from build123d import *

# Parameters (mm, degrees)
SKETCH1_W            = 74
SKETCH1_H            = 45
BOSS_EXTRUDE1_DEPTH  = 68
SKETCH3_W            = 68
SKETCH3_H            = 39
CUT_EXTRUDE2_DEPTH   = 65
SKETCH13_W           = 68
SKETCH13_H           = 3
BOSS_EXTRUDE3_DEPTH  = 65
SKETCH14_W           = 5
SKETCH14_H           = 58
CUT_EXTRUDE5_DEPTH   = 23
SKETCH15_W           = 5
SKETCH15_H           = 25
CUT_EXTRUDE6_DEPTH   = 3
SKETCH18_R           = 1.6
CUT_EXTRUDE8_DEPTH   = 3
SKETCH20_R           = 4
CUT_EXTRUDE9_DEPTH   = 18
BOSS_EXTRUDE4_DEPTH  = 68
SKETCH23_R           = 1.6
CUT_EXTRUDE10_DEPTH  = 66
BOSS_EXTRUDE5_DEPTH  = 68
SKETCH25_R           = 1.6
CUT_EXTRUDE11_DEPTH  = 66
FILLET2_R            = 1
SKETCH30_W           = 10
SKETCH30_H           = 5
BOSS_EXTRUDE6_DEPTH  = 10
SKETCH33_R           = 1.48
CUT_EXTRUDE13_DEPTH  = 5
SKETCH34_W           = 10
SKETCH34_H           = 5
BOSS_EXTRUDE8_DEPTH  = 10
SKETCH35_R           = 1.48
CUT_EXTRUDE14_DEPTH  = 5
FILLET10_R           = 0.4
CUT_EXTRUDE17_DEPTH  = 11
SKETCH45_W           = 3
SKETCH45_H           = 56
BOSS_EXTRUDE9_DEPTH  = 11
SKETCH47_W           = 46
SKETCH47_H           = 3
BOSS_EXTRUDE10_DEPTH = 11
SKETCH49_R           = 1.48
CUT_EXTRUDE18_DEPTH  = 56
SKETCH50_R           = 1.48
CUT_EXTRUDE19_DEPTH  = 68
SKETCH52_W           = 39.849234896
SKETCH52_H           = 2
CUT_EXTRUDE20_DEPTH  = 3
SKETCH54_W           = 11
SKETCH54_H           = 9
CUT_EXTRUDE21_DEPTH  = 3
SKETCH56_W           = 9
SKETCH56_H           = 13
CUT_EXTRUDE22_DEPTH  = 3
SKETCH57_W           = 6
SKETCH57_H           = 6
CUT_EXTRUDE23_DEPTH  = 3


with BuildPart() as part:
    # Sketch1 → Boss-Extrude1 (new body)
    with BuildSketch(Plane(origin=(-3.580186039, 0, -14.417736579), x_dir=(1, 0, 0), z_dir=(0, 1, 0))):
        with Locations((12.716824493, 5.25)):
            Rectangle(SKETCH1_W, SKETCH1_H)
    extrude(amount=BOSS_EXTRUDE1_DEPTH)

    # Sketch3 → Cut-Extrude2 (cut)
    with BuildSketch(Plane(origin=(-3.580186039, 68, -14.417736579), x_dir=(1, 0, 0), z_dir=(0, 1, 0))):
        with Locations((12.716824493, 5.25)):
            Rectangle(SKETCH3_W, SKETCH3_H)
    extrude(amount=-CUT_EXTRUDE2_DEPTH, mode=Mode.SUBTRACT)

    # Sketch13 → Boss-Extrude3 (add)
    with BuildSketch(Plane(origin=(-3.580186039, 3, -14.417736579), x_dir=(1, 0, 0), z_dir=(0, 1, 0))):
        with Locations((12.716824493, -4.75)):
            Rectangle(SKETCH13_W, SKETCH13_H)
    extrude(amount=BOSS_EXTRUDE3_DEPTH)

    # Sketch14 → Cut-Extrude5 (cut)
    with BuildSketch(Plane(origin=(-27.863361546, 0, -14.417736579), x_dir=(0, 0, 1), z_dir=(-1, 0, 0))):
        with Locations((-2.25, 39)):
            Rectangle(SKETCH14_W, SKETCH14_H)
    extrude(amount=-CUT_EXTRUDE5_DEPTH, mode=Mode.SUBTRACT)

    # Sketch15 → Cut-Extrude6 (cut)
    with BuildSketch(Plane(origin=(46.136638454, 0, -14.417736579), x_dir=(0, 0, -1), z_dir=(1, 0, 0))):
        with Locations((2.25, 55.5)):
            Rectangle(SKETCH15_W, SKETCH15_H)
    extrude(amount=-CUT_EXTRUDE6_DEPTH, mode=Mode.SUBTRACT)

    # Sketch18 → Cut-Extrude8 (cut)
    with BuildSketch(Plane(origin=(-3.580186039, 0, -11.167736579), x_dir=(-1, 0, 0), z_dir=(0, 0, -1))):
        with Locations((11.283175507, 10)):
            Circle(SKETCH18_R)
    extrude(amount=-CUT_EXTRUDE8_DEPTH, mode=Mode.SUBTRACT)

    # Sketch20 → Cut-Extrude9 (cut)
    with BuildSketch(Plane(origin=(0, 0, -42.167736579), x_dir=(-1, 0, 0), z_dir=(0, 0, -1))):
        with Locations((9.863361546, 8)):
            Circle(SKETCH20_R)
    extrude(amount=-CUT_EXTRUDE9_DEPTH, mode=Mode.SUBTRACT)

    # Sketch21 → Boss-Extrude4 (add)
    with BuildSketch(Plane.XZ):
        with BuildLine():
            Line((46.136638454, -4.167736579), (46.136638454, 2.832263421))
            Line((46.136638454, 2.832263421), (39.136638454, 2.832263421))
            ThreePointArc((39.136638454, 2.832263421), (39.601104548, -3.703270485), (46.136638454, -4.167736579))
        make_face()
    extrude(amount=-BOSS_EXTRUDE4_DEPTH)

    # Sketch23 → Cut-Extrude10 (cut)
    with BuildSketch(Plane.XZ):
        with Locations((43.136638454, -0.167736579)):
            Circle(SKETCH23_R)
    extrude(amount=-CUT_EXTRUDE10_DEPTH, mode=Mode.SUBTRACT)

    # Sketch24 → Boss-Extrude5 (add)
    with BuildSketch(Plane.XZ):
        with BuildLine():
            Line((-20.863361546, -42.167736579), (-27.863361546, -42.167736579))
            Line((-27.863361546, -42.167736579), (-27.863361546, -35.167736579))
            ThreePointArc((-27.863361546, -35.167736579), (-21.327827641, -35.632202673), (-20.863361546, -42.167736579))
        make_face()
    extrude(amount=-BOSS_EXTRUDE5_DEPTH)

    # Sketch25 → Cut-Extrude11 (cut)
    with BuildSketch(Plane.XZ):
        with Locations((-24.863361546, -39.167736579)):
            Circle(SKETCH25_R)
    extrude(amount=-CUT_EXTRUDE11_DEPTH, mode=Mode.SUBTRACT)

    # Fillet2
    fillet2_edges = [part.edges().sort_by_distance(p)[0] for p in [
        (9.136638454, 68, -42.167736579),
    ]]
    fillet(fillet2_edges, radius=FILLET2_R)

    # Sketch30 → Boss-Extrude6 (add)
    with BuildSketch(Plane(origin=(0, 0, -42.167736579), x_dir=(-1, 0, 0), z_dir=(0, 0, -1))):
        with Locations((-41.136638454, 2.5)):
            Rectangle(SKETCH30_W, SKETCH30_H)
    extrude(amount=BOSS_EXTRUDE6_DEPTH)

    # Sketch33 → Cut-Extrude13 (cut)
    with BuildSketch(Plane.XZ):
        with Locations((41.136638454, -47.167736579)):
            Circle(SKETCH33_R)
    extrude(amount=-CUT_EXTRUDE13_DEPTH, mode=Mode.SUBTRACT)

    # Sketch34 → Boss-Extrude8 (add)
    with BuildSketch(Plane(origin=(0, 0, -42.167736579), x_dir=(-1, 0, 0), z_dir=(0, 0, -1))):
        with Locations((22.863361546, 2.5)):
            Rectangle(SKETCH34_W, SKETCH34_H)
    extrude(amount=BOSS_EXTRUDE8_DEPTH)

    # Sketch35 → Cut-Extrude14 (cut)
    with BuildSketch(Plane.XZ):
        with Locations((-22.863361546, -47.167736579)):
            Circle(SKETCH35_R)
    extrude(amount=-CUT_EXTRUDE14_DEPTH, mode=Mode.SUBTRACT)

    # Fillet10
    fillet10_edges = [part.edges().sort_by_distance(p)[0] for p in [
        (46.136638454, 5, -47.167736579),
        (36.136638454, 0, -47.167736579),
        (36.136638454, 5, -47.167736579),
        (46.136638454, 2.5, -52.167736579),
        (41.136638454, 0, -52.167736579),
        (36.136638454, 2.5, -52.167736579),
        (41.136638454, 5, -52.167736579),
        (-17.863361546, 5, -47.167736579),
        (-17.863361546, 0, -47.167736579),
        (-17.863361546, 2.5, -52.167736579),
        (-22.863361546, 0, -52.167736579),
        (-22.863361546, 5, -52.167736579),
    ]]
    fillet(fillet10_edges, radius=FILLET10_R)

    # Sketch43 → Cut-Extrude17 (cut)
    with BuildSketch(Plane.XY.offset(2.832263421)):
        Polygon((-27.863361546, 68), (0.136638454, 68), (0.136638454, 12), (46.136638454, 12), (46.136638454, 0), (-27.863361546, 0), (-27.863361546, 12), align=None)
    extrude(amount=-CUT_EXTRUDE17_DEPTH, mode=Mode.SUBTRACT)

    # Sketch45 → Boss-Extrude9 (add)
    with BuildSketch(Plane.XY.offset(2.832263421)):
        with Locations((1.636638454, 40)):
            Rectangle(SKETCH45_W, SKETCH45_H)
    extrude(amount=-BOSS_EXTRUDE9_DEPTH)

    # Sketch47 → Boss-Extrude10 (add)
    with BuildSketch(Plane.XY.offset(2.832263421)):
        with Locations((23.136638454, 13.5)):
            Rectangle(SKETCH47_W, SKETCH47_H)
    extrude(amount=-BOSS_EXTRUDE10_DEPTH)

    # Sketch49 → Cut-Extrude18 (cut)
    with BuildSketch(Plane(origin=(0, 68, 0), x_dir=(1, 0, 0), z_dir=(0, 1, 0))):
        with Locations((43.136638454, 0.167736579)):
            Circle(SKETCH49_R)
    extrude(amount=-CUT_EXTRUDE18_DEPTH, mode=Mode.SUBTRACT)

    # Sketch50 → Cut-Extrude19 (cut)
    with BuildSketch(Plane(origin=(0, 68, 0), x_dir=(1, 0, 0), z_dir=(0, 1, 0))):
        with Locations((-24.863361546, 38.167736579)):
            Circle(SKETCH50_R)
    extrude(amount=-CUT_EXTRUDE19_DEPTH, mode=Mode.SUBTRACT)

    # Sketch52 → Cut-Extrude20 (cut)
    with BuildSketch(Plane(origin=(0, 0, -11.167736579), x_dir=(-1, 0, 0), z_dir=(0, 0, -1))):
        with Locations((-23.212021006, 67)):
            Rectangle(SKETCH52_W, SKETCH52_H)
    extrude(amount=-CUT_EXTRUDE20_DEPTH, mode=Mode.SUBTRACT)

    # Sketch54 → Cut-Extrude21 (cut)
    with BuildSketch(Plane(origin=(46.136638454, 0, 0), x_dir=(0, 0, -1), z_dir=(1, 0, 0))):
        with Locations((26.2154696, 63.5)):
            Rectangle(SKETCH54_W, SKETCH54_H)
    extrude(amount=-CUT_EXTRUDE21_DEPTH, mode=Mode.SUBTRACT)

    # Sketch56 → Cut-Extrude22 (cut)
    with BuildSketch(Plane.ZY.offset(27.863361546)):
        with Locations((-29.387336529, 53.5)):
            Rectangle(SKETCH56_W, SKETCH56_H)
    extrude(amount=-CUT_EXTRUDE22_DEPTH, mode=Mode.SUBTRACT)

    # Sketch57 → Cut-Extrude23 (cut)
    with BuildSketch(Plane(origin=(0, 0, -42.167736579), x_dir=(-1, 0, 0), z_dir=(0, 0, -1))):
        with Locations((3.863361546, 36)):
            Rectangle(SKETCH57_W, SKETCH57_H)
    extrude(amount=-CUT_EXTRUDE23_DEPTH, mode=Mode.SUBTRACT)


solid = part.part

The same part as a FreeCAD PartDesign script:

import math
import FreeCAD as App
import Part
import Sketcher
Q = App.Units.Quantity


def edges_at(feature, points):
    """Names of the edges that pass closest to the given points."""
    edges = feature.Shape.Edges
    near = lambda p: min(range(len(edges)), key=lambda i: edges[i].distToShape(Part.Vertex(*p))[0])
    return sorted({f"Edge{near(p) + 1}" for p in points})


def add_polygon(sketch, points):
    """Adds a closed chain of lines whose ends are joined by coincident constraints."""
    first, n = sketch.GeometryCount, len(points)
    for a, b in zip(points, points[1:] + points[:1]):
        sketch.addGeometry(Part.LineSegment(App.Vector(*a, 0), App.Vector(*b, 0)), False)
    for i in range(n):
        sketch.addConstraint(Sketcher.Constraint("Coincident", first + i, 2, first + (i + 1) % n, 1))

doc = App.newDocument("Part")
body = doc.addObject("PartDesign::Body", "Body")

sketch1 = body.newObject("Sketcher::SketchObject", "Sketch")
sketch1.AttachmentSupport = (doc.getObject("XZ_Plane"), [""])
sketch1.MapMode = "FlatFace"
add_polygon(sketch1, [(-27.863362, -42.167737), (-27.863362, 2.832263), (46.136638, 2.832263), (46.136638, -42.167737)])
sketch1.addConstraint([
    Sketcher.Constraint("Vertical", 0),
    Sketcher.Constraint("Horizontal", 1),
    Sketcher.Constraint("Vertical", 2),
    Sketcher.Constraint("Horizontal", 3),
    Sketcher.Constraint("DistanceX", 1, 1, 1, 2, Q("74 mm")),
    Sketcher.Constraint("DistanceY", 0, 1, 0, 2, Q("45 mm")),
    Sketcher.Constraint("DistanceX", 0, 2, -1, 1, Q("27.863362 mm")),
    Sketcher.Constraint("DistanceY", -1, 1, 0, 2, Q("2.832263 mm")),
])
pad1 = body.newObject("PartDesign::Pad", "Pad")
pad1.Profile = sketch1
pad1.Length = 68
pad1.Reversed = True

sketch2 = body.newObject("Sketcher::SketchObject", "Sketch001")
sketch2.AttachmentSupport = (doc.getObject("XZ_Plane"), [""])
sketch2.MapMode = "FlatFace"
sketch2.AttachmentOffset = App.Placement(App.Vector(0, 0, -68), App.Rotation())
add_polygon(sketch2, [(-24.863362, -39.167737), (-24.863362, -0.167737), (43.136638, -0.167737), (43.136638, -39.167737)])
sketch2.addConstraint([
    Sketcher.Constraint("Vertical", 0),
    Sketcher.Constraint("Horizontal", 1),
    Sketcher.Constraint("Vertical", 2),
    Sketcher.Constraint("Horizontal", 3),
    Sketcher.Constraint("DistanceX", 1, 1, 1, 2, Q("68 mm")),
    Sketcher.Constraint("DistanceY", 0, 1, 0, 2, Q("39 mm")),
    Sketcher.Constraint("DistanceX", 0, 2, -1, 1, Q("24.863362 mm")),
    Sketcher.Constraint("DistanceY", 0, 2, -1, 1, Q("0.167737 mm")),
])
pocket1 = body.newObject("PartDesign::Pocket", "Pocket")
pocket1.Profile = sketch2
pocket1.Length = 65
pocket1.Reversed = True

sketch3 = body.newObject("Sketcher::SketchObject", "Sketch002")
sketch3.AttachmentSupport = (doc.getObject("XZ_Plane"), [""])
sketch3.MapMode = "FlatFace"
sketch3.AttachmentOffset = App.Placement(App.Vector(0, 0, -3), App.Rotation())
add_polygon(sketch3, [(-24.863362, -11.167737), (-24.863362, -8.167737), (43.136638, -8.167737), (43.136638, -11.167737)])
sketch3.addConstraint([
    Sketcher.Constraint("Vertical", 0),
    Sketcher.Constraint("Horizontal", 1),
    Sketcher.Constraint("Vertical", 2),
    Sketcher.Constraint("Horizontal", 3),
    Sketcher.Constraint("DistanceX", 1, 1, 1, 2, Q("68 mm")),
    Sketcher.Constraint("DistanceY", 0, 1, 0, 2, Q("3 mm")),
    Sketcher.Constraint("DistanceX", 0, 2, -1, 1, Q("24.863362 mm")),
    Sketcher.Constraint("DistanceY", 0, 2, -1, 1, Q("8.167737 mm")),
])
pad2 = body.newObject("PartDesign::Pad", "Pad001")
pad2.Profile = sketch3
pad2.Length = 65
pad2.Reversed = True

sketch4 = body.newObject("Sketcher::SketchObject", "Sketch003")
sketch4.AttachmentSupport = (doc.getObject("YZ_Plane"), [""])
sketch4.MapMode = "FlatFace"
sketch4.AttachmentOffset = App.Placement(App.Vector(0, 0, -27.863362), App.Rotation())
add_polygon(sketch4, [(68, -19.167737), (10, -19.167737), (10, -14.167737), (68, -14.167737)])
sketch4.addConstraint([
    Sketcher.Constraint("Horizontal", 0),
    Sketcher.Constraint("Vertical", 1),
    Sketcher.Constraint("Horizontal", 2),
    Sketcher.Constraint("Vertical", 3),
    Sketcher.Constraint("DistanceX", 0, 2, 0, 1, Q("58 mm")),
    Sketcher.Constraint("DistanceY", 1, 1, 1, 2, Q("5 mm")),
    Sketcher.Constraint("DistanceX", -1, 1, 0, 2, Q("10 mm")),
    Sketcher.Constraint("DistanceY", 0, 2, -1, 1, Q("19.167737 mm")),
])
pocket2 = body.newObject("PartDesign::Pocket", "Pocket001")
pocket2.Profile = sketch4
pocket2.Length = 23
pocket2.Reversed = True

sketch5 = body.newObject("Sketcher::SketchObject", "Sketch004")
sketch5.AttachmentSupport = (doc.getObject("YZ_Plane"), [""])
sketch5.MapMode = "FlatFace"
sketch5.AttachmentOffset = App.Placement(App.Vector(0, 0, 46.136638), App.Rotation())
add_polygon(sketch5, [(68, -14.167737), (43, -14.167737), (43, -19.167737), (68, -19.167737)])
sketch5.addConstraint([
    Sketcher.Constraint("Horizontal", 0),
    Sketcher.Constraint("Vertical", 1),
    Sketcher.Constraint("Horizontal", 2),
    Sketcher.Constraint("Vertical", 3),
    Sketcher.Constraint("DistanceX", 0, 2, 0, 1, Q("25 mm")),
    Sketcher.Constraint("DistanceY", 1, 2, 1, 1, Q("5 mm")),
    Sketcher.Constraint("DistanceX", -1, 1, 0, 2, Q("43 mm")),
    Sketcher.Constraint("DistanceY", 0, 2, -1, 1, Q("14.167737 mm")),
])
pocket3 = body.newObject("PartDesign::Pocket", "Pocket002")
pocket3.Profile = sketch5
pocket3.Length = 3

sketch6 = body.newObject("Sketcher::SketchObject", "Sketch005")
sketch6.AttachmentSupport = (doc.getObject("XY_Plane"), [""])
sketch6.MapMode = "FlatFace"
sketch6.AttachmentOffset = App.Placement(App.Vector(0, 0, -11.167737), App.Rotation())
sketch6.addGeometry(Part.Circle(App.Vector(-14.863362, 10, 0), App.Vector(0, 0, 1), 1.6), False)
sketch6.addConstraint([
    Sketcher.Constraint("Diameter", 0, Q("3.2 mm")),
    Sketcher.Constraint("DistanceY", -1, 1, 0, 3, Q("10 mm")),
    Sketcher.Constraint("DistanceX", 0, 3, -1, 1, Q("14.863362 mm")),
])
pocket4 = body.newObject("PartDesign::Pocket", "Pocket003")
pocket4.Profile = sketch6
pocket4.Length = 3
pocket4.Reversed = True

sketch7 = body.newObject("Sketcher::SketchObject", "Sketch006")
sketch7.AttachmentSupport = (doc.getObject("XY_Plane"), [""])
sketch7.MapMode = "FlatFace"
sketch7.AttachmentOffset = App.Placement(App.Vector(0, 0, -42.167737), App.Rotation())
sketch7.addGeometry(Part.Circle(App.Vector(-9.863362, 8, 0), App.Vector(0, 0, 1), 4), False)
sketch7.addConstraint([
    Sketcher.Constraint("Diameter", 0, Q("8 mm")),
    Sketcher.Constraint("DistanceY", -1, 1, 0, 3, Q("8 mm")),
    Sketcher.Constraint("DistanceX", 0, 3, -1, 1, Q("9.863362 mm")),
])
pocket5 = body.newObject("PartDesign::Pocket", "Pocket004")
pocket5.Profile = sketch7
pocket5.Length = 18
pocket5.Reversed = True

sketch8 = body.newObject("Sketcher::SketchObject", "Sketch007")
sketch8.AttachmentSupport = (doc.getObject("XZ_Plane"), [""])
sketch8.MapMode = "FlatFace"
sketch8.addGeometry([
    Part.LineSegment(App.Vector(46.136638, -4.167737, 0), App.Vector(46.136638, 2.832263, 0)),
    Part.LineSegment(App.Vector(46.136638, 2.832263, 0), App.Vector(39.136638, 2.832263, 0)),
    Part.ArcOfCircle(Part.Circle(App.Vector(43.136638, -0.167737, 0), App.Vector(0, 0, 1), 5), math.radians(143.130102), math.radians(306.869898)),
], False)
sketch8.addConstraint([
    Sketcher.Constraint("Coincident", 0, 2, 1, 1),
    Sketcher.Constraint("Coincident", 1, 2, 2, 1),
    Sketcher.Constraint("Coincident", 2, 2, 0, 1),
    Sketcher.Constraint("Vertical", 0),
    Sketcher.Constraint("Horizontal", 1),
    Sketcher.Constraint("Equal", 1, 0),
    Sketcher.Constraint("Radius", 2, Q("5 mm")),
    Sketcher.Constraint("DistanceX", 1, 2, 1, 1, Q("7 mm")),
    Sketcher.Constraint("DistanceX", -1, 1, 2, 3, Q("43.136638 mm")),
    Sketcher.Constraint("DistanceY", 2, 3, -1, 1, Q("0.167737 mm")),
])
pad3 = body.newObject("PartDesign::Pad", "Pad002")
pad3.Profile = sketch8
pad3.Length = 68
pad3.Reversed = True

sketch9 = body.newObject("Sketcher::SketchObject", "Sketch008")
sketch9.AttachmentSupport = (doc.getObject("XZ_Plane"), [""])
sketch9.MapMode = "FlatFace"
sketch9.addGeometry(Part.Circle(App.Vector(43.136638, -0.167737, 0), App.Vector(0, 0, 1), 1.6), False)
sketch9.addConstraint([
    Sketcher.Constraint("Diameter", 0, Q("3.2 mm")),
    Sketcher.Constraint("DistanceX", -1, 1, 0, 3, Q("43.136638 mm")),
    Sketcher.Constraint("DistanceY", 0, 3, -1, 1, Q("0.167737 mm")),
])
pocket6 = body.newObject("PartDesign::Pocket", "Pocket005")
pocket6.Profile = sketch9
pocket6.Length = 66

sketch10 = body.newObject("Sketcher::SketchObject", "Sketch009")
sketch10.AttachmentSupport = (doc.getObject("XZ_Plane"), [""])
sketch10.MapMode = "FlatFace"
sketch10.addGeometry([
    Part.LineSegment(App.Vector(-27.863362, -42.167737, 0), App.Vector(-20.863362, -42.167737, 0)),
    Part.ArcOfCircle(Part.Circle(App.Vector(-24.863362, -39.167737, 0), App.Vector(0, 0, 1), 5), math.radians(-36.869898), math.radians(126.869898)),
    Part.LineSegment(App.Vector(-27.863362, -35.167737, 0), App.Vector(-27.863362, -42.167737, 0)),
], False)
sketch10.addConstraint([
    Sketcher.Constraint("Coincident", 0, 2, 1, 1),
    Sketcher.Constraint("Coincident", 1, 2, 2, 1),
    Sketcher.Constraint("Coincident", 2, 2, 0, 1),
    Sketcher.Constraint("Horizontal", 0),
    Sketcher.Constraint("Vertical", 2),
    Sketcher.Constraint("Equal", 0, 2),
    Sketcher.Constraint("Radius", 1, Q("5 mm")),
    Sketcher.Constraint("DistanceX", 0, 1, 0, 2, Q("7 mm")),
    Sketcher.Constraint("DistanceX", 1, 3, -1, 1, Q("24.863362 mm")),
    Sketcher.Constraint("DistanceY", 1, 3, -1, 1, Q("39.167737 mm")),
])
pad4 = body.newObject("PartDesign::Pad", "Pad003")
pad4.Profile = sketch10
pad4.Length = 68
pad4.Reversed = True

sketch11 = body.newObject("Sketcher::SketchObject", "Sketch010")
sketch11.AttachmentSupport = (doc.getObject("XZ_Plane"), [""])
sketch11.MapMode = "FlatFace"
sketch11.addGeometry(Part.Circle(App.Vector(-24.863362, -39.167737, 0), App.Vector(0, 0, 1), 1.6), False)
sketch11.addConstraint([
    Sketcher.Constraint("Diameter", 0, Q("3.2 mm")),
    Sketcher.Constraint("DistanceX", 0, 3, -1, 1, Q("24.863362 mm")),
    Sketcher.Constraint("DistanceY", 0, 3, -1, 1, Q("39.167737 mm")),
])
pocket7 = body.newObject("PartDesign::Pocket", "Pocket006")
pocket7.Profile = sketch11
pocket7.Length = 66
doc.recompute()

fillet = body.newObject("PartDesign::Fillet", "Fillet")
fillet.Base = (pocket7, edges_at(pocket7, [(9.137, 68, -42.168)]))
fillet.Radius = 1

sketch12 = body.newObject("Sketcher::SketchObject", "Sketch011")
sketch12.AttachmentSupport = (doc.getObject("XY_Plane"), [""])
sketch12.MapMode = "FlatFace"
sketch12.AttachmentOffset = App.Placement(App.Vector(0, 0, -42.167737), App.Rotation())
add_polygon(sketch12, [(46.136638, 5), (46.136638, 0), (36.136638, 0), (36.136638, 5)])
sketch12.addConstraint([
    Sketcher.Constraint("Vertical", 0),
    Sketcher.Constraint("Horizontal", 1),
    Sketcher.Constraint("Vertical", 2),
    Sketcher.Constraint("Horizontal", 3),
    Sketcher.Constraint("PointOnObject", 0, 2, -1),
    Sketcher.Constraint("DistanceX", 1, 2, 1, 1, Q("10 mm")),
    Sketcher.Constraint("DistanceY", 0, 2, 0, 1, Q("5 mm")),
    Sketcher.Constraint("DistanceX", -1, 1, 0, 2, Q("46.136638 mm")),
])
pad5 = body.newObject("PartDesign::Pad", "Pad004")
pad5.Profile = sketch12
pad5.Length = 10
pad5.Reversed = True

sketch13 = body.newObject("Sketcher::SketchObject", "Sketch012")
sketch13.AttachmentSupport = (doc.getObject("XZ_Plane"), [""])
sketch13.MapMode = "FlatFace"
sketch13.addGeometry(Part.Circle(App.Vector(41.136638, -47.167737, 0), App.Vector(0, 0, 1), 1.48), False)
sketch13.addConstraint([
    Sketcher.Constraint("Diameter", 0, Q("2.96 mm")),
    Sketcher.Constraint("DistanceX", -1, 1, 0, 3, Q("41.136638 mm")),
    Sketcher.Constraint("DistanceY", 0, 3, -1, 1, Q("47.167737 mm")),
])
pocket8 = body.newObject("PartDesign::Pocket", "Pocket007")
pocket8.Profile = sketch13
pocket8.Length = 5

sketch14 = body.newObject("Sketcher::SketchObject", "Sketch013")
sketch14.AttachmentSupport = (doc.getObject("XY_Plane"), [""])
sketch14.MapMode = "FlatFace"
sketch14.AttachmentOffset = App.Placement(App.Vector(0, 0, -42.167737), App.Rotation())
add_polygon(sketch14, [(-17.863362, 5), (-17.863362, 0), (-27.863362, 0), (-27.863362, 5)])
sketch14.addConstraint([
    Sketcher.Constraint("Vertical", 0),
    Sketcher.Constraint("Horizontal", 1),
    Sketcher.Constraint("Vertical", 2),
    Sketcher.Constraint("Horizontal", 3),
    Sketcher.Constraint("PointOnObject", 0, 2, -1),
    Sketcher.Constraint("DistanceX", 1, 2, 1, 1, Q("10 mm")),
    Sketcher.Constraint("DistanceY", 0, 2, 0, 1, Q("5 mm")),
    Sketcher.Constraint("DistanceX", 0, 2, -1, 1, Q("17.863362 mm")),
])
pad6 = body.newObject("PartDesign::Pad", "Pad005")
pad6.Profile = sketch14
pad6.Length = 10
pad6.Reversed = True

sketch15 = body.newObject("Sketcher::SketchObject", "Sketch014")
sketch15.AttachmentSupport = (doc.getObject("XZ_Plane"), [""])
sketch15.MapMode = "FlatFace"
sketch15.addGeometry(Part.Circle(App.Vector(-22.863362, -47.167737, 0), App.Vector(0, 0, 1), 1.48), False)
sketch15.addConstraint([
    Sketcher.Constraint("Diameter", 0, Q("2.96 mm")),
    Sketcher.Constraint("DistanceX", 0, 3, -1, 1, Q("22.863362 mm")),
    Sketcher.Constraint("DistanceY", 0, 3, -1, 1, Q("47.167737 mm")),
])
pocket9 = body.newObject("PartDesign::Pocket", "Pocket008")
pocket9.Profile = sketch15
pocket9.Length = 5
doc.recompute()

fillet2 = body.newObject("PartDesign::Fillet", "Fillet001")
fillet2.Base = (pocket9, edges_at(pocket9, [
    (46.137, 5, -47.168),
    (36.137, 0, -47.168),
    (36.137, 5, -47.168),
    (46.137, 2.5, -52.168),
    (41.137, 0, -52.168),
    (36.137, 2.5, -52.168),
    (41.137, 5, -52.168),
    (-17.863, 5, -47.168),
    (-17.863, 0, -47.168),
    (-17.863, 2.5, -52.168),
    (-22.863, 0, -52.168),
    (-22.863, 5, -52.168),
]))
fillet2.Radius = 0.4

sketch16 = body.newObject("Sketcher::SketchObject", "Sketch015")
sketch16.AttachmentSupport = (doc.getObject("XY_Plane"), [""])
sketch16.MapMode = "FlatFace"
sketch16.AttachmentOffset = App.Placement(App.Vector(0, 0, 2.832263), App.Rotation())
add_polygon(sketch16, [(0.136638, 68), (-27.863362, 68), (-27.863362, 0), (46.136638, 0), (46.136638, 12), (0.136638, 12)])
sketch16.addConstraint([
    Sketcher.Constraint("Horizontal", 0),
    Sketcher.Constraint("Vertical", 1),
    Sketcher.Constraint("Horizontal", 2),
    Sketcher.Constraint("Vertical", 3),
    Sketcher.Constraint("Horizontal", 4),
    Sketcher.Constraint("Vertical", 5),
    Sketcher.Constraint("PointOnObject", 1, 2, -1),
    Sketcher.Constraint("DistanceX", 0, 2, 0, 1, Q("28 mm")),
    Sketcher.Constraint("DistanceX", 2, 1, 2, 2, Q("74 mm")),
    Sketcher.Constraint("DistanceY", 1, 2, 1, 1, Q("68 mm")),
    Sketcher.Constraint("DistanceY", 3, 1, 3, 2, Q("12 mm")),
    Sketcher.Constraint("DistanceX", 0, 2, -1, 1, Q("27.863362 mm")),
])
pocket10 = body.newObject("PartDesign::Pocket", "Pocket009")
pocket10.Profile = sketch16
pocket10.Length = 11

sketch17 = body.newObject("Sketcher::SketchObject", "Sketch016")
sketch17.AttachmentSupport = (doc.getObject("XY_Plane"), [""])
sketch17.MapMode = "FlatFace"
sketch17.AttachmentOffset = App.Placement(App.Vector(0, 0, 2.832263), App.Rotation())
add_polygon(sketch17, [(0.136638, 68), (0.136638, 12), (3.136638, 12), (3.136638, 68)])
sketch17.addConstraint([
    Sketcher.Constraint("Vertical", 0),
    Sketcher.Constraint("Horizontal", 1),
    Sketcher.Constraint("Vertical", 2),
    Sketcher.Constraint("Horizontal", 3),
    Sketcher.Constraint("DistanceX", 1, 1, 1, 2, Q("3 mm")),
    Sketcher.Constraint("DistanceY", 0, 2, 0, 1, Q("56 mm")),
    Sketcher.Constraint("DistanceY", -1, 1, 0, 2, Q("12 mm")),
    Sketcher.Constraint("DistanceX", -1, 1, 0, 2, Q("0.136638 mm")),
])
pad7 = body.newObject("PartDesign::Pad", "Pad006")
pad7.Profile = sketch17
pad7.Length = 11
pad7.Reversed = True

sketch18 = body.newObject("Sketcher::SketchObject", "Sketch017")
sketch18.AttachmentSupport = (doc.getObject("XY_Plane"), [""])
sketch18.MapMode = "FlatFace"
sketch18.AttachmentOffset = App.Placement(App.Vector(0, 0, 2.832263), App.Rotation())
add_polygon(sketch18, [(0.136638, 15), (0.136638, 12), (46.136638, 12), (46.136638, 15)])
sketch18.addConstraint([
    Sketcher.Constraint("Vertical", 0),
    Sketcher.Constraint("Horizontal", 1),
    Sketcher.Constraint("Vertical", 2),
    Sketcher.Constraint("Horizontal", 3),
    Sketcher.Constraint("DistanceX", 1, 1, 1, 2, Q("46 mm")),
    Sketcher.Constraint("DistanceY", 0, 2, 0, 1, Q("3 mm")),
    Sketcher.Constraint("DistanceY", -1, 1, 0, 2, Q("12 mm")),
    Sketcher.Constraint("DistanceX", -1, 1, 0, 2, Q("0.136638 mm")),
])
pad8 = body.newObject("PartDesign::Pad", "Pad007")
pad8.Profile = sketch18
pad8.Length = 11
pad8.Reversed = True

sketch19 = body.newObject("Sketcher::SketchObject", "Sketch018")
sketch19.AttachmentSupport = (doc.getObject("XZ_Plane"), [""])
sketch19.MapMode = "FlatFace"
sketch19.AttachmentOffset = App.Placement(App.Vector(0, 0, -68), App.Rotation())
sketch19.addGeometry(Part.Circle(App.Vector(43.136638, -0.167737, 0), App.Vector(0, 0, 1), 1.48), False)
sketch19.addConstraint([
    Sketcher.Constraint("Diameter", 0, Q("2.96 mm")),
    Sketcher.Constraint("DistanceX", -1, 1, 0, 3, Q("43.136638 mm")),
    Sketcher.Constraint("DistanceY", 0, 3, -1, 1, Q("0.167737 mm")),
])
pocket11 = body.newObject("PartDesign::Pocket", "Pocket010")
pocket11.Profile = sketch19
pocket11.Length = 56
pocket11.Reversed = True

sketch20 = body.newObject("Sketcher::SketchObject", "Sketch019")
sketch20.AttachmentSupport = (doc.getObject("XZ_Plane"), [""])
sketch20.MapMode = "FlatFace"
sketch20.AttachmentOffset = App.Placement(App.Vector(0, 0, -68), App.Rotation())
sketch20.addGeometry(Part.Circle(App.Vector(-24.863362, -38.167737, 0), App.Vector(0, 0, 1), 1.48), False)
sketch20.addConstraint([
    Sketcher.Constraint("Diameter", 0, Q("2.96 mm")),
    Sketcher.Constraint("DistanceX", 0, 3, -1, 1, Q("24.863362 mm")),
    Sketcher.Constraint("DistanceY", 0, 3, -1, 1, Q("38.167737 mm")),
])
pocket12 = body.newObject("PartDesign::Pocket", "Pocket011")
pocket12.Profile = sketch20
pocket12.Length = 68
pocket12.Reversed = True

sketch21 = body.newObject("Sketcher::SketchObject", "Sketch020")
sketch21.AttachmentSupport = (doc.getObject("XY_Plane"), [""])
sketch21.MapMode = "FlatFace"
sketch21.AttachmentOffset = App.Placement(App.Vector(0, 0, -11.167737), App.Rotation())
add_polygon(sketch21, [(43.136638, 68), (43.136638, 66), (3.287404, 66), (3.287404, 68)])
sketch21.addConstraint([
    Sketcher.Constraint("Vertical", 0),
    Sketcher.Constraint("Horizontal", 1),
    Sketcher.Constraint("Vertical", 2),
    Sketcher.Constraint("Horizontal", 3),
    Sketcher.Constraint("DistanceY", 0, 2, 0, 1, Q("2 mm")),
    Sketcher.Constraint("DistanceY", -1, 1, 0, 2, Q("66 mm")),
    Sketcher.Constraint("DistanceX", 1, 2, 1, 1, Q("39.849235 mm")),
    Sketcher.Constraint("DistanceX", -1, 1, 0, 2, Q("43.136638 mm")),
])
pocket13 = body.newObject("PartDesign::Pocket", "Pocket012")
pocket13.Profile = sketch21
pocket13.Length = 3
pocket13.Reversed = True

sketch22 = body.newObject("Sketcher::SketchObject", "Sketch021")
sketch22.AttachmentSupport = (doc.getObject("YZ_Plane"), [""])
sketch22.MapMode = "FlatFace"
sketch22.AttachmentOffset = App.Placement(App.Vector(0, 0, 46.136638), App.Rotation())
add_polygon(sketch22, [(68, -20.71547), (59, -20.71547), (59, -31.71547), (68, -31.71547)])
sketch22.addConstraint([
    Sketcher.Constraint("Horizontal", 0),
    Sketcher.Constraint("Vertical", 1),
    Sketcher.Constraint("Horizontal", 2),
    Sketcher.Constraint("Vertical", 3),
    Sketcher.Constraint("DistanceX", 0, 2, 0, 1, Q("9 mm")),
    Sketcher.Constraint("DistanceY", 1, 2, 1, 1, Q("11 mm")),
    Sketcher.Constraint("DistanceX", -1, 1, 0, 2, Q("59 mm")),
    Sketcher.Constraint("DistanceY", 0, 2, -1, 1, Q("20.71547 mm")),
])
pocket14 = body.newObject("PartDesign::Pocket", "Pocket013")
pocket14.Profile = sketch22
pocket14.Length = 3

sketch23 = body.newObject("Sketcher::SketchObject", "Sketch022")
sketch23.AttachmentSupport = (doc.getObject("YZ_Plane"), [""])
sketch23.MapMode = "FlatFace"
sketch23.AttachmentOffset = App.Placement(App.Vector(0, 0, -27.863362), App.Rotation())
add_polygon(sketch23, [(60, -33.887337), (47, -33.887337), (47, -24.887337), (60, -24.887337)])
sketch23.addConstraint([
    Sketcher.Constraint("Horizontal", 0),
    Sketcher.Constraint("Vertical", 1),
    Sketcher.Constraint("Horizontal", 2),
    Sketcher.Constraint("Vertical", 3),
    Sketcher.Constraint("DistanceX", 0, 2, 0, 1, Q("13 mm")),
    Sketcher.Constraint("DistanceY", 1, 1, 1, 2, Q("9 mm")),
    Sketcher.Constraint("DistanceX", -1, 1, 0, 2, Q("47 mm")),
    Sketcher.Constraint("DistanceY", 0, 2, -1, 1, Q("33.887337 mm")),
])
pocket15 = body.newObject("PartDesign::Pocket", "Pocket014")
pocket15.Profile = sketch23
pocket15.Length = 3
pocket15.Reversed = True

sketch24 = body.newObject("Sketcher::SketchObject", "Sketch023")
sketch24.AttachmentSupport = (doc.getObject("XY_Plane"), [""])
sketch24.MapMode = "FlatFace"
sketch24.AttachmentOffset = App.Placement(App.Vector(0, 0, -42.167737), App.Rotation())
add_polygon(sketch24, [(-0.863362, 39), (-0.863362, 33), (-6.863362, 33), (-6.863362, 39)])
sketch24.addConstraint([
    Sketcher.Constraint("Vertical", 0),
    Sketcher.Constraint("Horizontal", 1),
    Sketcher.Constraint("Vertical", 2),
    Sketcher.Constraint("Horizontal", 3),
    Sketcher.Constraint("Equal", 3, 0),
    Sketcher.Constraint("DistanceX", 1, 2, 1, 1, Q("6 mm")),
    Sketcher.Constraint("DistanceY", -1, 1, 0, 2, Q("33 mm")),
    Sketcher.Constraint("DistanceX", 0, 2, -1, 1, Q("0.863362 mm")),
])
pocket16 = body.newObject("PartDesign::Pocket", "Pocket015")
pocket16.Profile = sketch24
pocket16.Length = 3
pocket16.Reversed = True

doc.recompute()
